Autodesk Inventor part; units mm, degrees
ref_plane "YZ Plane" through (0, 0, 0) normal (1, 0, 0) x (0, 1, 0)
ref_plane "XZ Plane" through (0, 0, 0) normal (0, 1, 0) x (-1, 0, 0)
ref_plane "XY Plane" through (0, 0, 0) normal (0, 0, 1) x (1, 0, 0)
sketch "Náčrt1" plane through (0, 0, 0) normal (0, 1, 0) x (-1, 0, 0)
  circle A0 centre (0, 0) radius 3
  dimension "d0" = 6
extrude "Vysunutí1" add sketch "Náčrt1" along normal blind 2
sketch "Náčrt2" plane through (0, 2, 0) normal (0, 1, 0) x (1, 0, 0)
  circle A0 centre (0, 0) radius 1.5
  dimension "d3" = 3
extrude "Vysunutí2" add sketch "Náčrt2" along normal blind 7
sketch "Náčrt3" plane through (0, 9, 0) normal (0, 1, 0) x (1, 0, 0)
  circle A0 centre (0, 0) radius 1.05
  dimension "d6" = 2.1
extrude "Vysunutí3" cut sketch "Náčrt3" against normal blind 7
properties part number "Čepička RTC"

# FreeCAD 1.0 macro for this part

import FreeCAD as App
import Part
import Sketcher

doc = App.newDocument("Part")
body = doc.addObject("PartDesign::Body", "Body")

sketch1 = body.newObject("Sketcher::SketchObject", "Sketch")
sketch1.AttachmentSupport = (doc.getObject("XZ_Plane"), [""])
sketch1.MapMode = "FlatFace"
sketch1.addGeometry(Part.Circle(App.Vector(0, 0, 0), App.Vector(0, 0, 1), 3), False)
sketch1.addConstraint([
    Sketcher.Constraint("Coincident", 0, 3, -1, 1),
    Sketcher.Constraint("Diameter", 0, 6.0),
])
pad1 = body.newObject("PartDesign::Pad", "Pad")
pad1.Profile = sketch1
pad1.Length = 2
pad1.Reversed = True

sketch2 = body.newObject("Sketcher::SketchObject", "Sketch001")
sketch2.AttachmentSupport = (doc.getObject("XZ_Plane"), [""])
sketch2.MapMode = "FlatFace"
sketch2.AttachmentOffset = App.Placement(App.Vector(0, 0, -2), App.Rotation())
sketch2.addGeometry(Part.Circle(App.Vector(0, 0, 0), App.Vector(0, 0, 1), 1.5), False)
sketch2.addConstraint([
    Sketcher.Constraint("Coincident", 0, 3, -1, 1),
    Sketcher.Constraint("Diameter", 0, 3.0),
])
pad2 = body.newObject("PartDesign::Pad", "Pad001")
pad2.Profile = sketch2
pad2.Length = 7
pad2.Reversed = True

sketch3 = body.newObject("Sketcher::SketchObject", "Sketch002")
sketch3.AttachmentSupport = (doc.getObject("XZ_Plane"), [""])
sketch3.MapMode = "FlatFace"
sketch3.AttachmentOffset = App.Placement(App.Vector(0, 0, -9), App.Rotation())
sketch3.addGeometry(Part.Circle(App.Vector(0, 0, 0), App.Vector(0, 0, 1), 1.1), False)
sketch3.addConstraint([
    Sketcher.Constraint("Coincident", 0, 3, -1, 1),
    Sketcher.Constraint("Diameter", 0, 2.1),
])
pocket1 = body.newObject("PartDesign::Pocket", "Pocket")
pocket1.Profile = sketch3
pocket1.Length = 7
pocket1.Reversed = True

doc.recompute()
